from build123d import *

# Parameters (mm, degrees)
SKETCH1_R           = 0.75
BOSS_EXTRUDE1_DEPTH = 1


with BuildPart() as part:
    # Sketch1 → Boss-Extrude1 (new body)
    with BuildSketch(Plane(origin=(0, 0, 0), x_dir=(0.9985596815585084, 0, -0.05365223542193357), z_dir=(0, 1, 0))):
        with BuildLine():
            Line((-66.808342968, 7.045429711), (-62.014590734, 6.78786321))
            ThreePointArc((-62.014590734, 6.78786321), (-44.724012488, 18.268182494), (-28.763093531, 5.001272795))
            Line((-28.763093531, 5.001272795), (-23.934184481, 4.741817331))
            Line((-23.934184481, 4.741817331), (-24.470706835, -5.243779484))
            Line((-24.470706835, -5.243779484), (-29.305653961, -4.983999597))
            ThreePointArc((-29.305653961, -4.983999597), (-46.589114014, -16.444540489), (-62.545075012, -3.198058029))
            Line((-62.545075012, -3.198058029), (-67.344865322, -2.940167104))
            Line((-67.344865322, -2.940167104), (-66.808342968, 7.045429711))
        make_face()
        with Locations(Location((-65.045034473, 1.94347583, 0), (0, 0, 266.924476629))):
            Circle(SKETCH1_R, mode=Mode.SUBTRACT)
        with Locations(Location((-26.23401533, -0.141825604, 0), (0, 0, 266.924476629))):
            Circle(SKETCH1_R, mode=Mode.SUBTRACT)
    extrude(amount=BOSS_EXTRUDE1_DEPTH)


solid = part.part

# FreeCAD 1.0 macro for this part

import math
import FreeCAD as App
import Part
import Sketcher
from FreeCAD import Vector
Q = App.Units.Quantity

doc = App.newDocument("Part")
body = doc.addObject("PartDesign::Body", "Body")

sketch1 = body.newObject("Sketcher::SketchObject", "Sketch")
sketch1.AttachmentSupport = (doc.getObject("XZ_Plane"), [""])
sketch1.MapMode = "FlatFace"
sketch1.addGeometry([
    Part.LineSegment(Vector(-62.289454, -3.450865, 0), Vector(-67.090121, -3.450865, 0)),
    Part.LineSegment(Vector(-67.090121, -3.450865, 0), Vector(-67.090121, 6.549135, 0)),
    Part.LineSegment(Vector(-67.090121, 6.549135, 0), Vector(-62.283407, 6.549135, 0)),
    Part.ArcOfCircle(Part.Circle(Vector(-45.639725, 1.539069, 0), Vector(0, 0, 1), 17.381396), math.radians(16.752797), math.radians(163.247203)),
    Part.LineSegment(Vector(-28.996042, 6.549135, 0), Vector(-24.154121, 6.549135, 0)),
    Part.LineSegment(Vector(-24.154121, 6.549135, 0), Vector(-24.154121, -3.450865, 0)),
    Part.LineSegment(Vector(-24.154121, -3.450865, 0), Vector(-28.989995, -3.450865, 0)),
    Part.ArcOfCircle(Part.Circle(Vector(-45.639725, 1.539069, 0), Vector(0, 0, 1), 17.381396), math.radians(-163.316494), math.radians(-16.683506)),
    Part.Circle(Vector(-26.188621, 1.549135, 0), Vector(0, 0, 1), 0.75),
    Part.Circle(Vector(-65.055621, 1.549135, 0), Vector(0, 0, 1), 0.75),
], False)
sketch1.addConstraint([
    Sketcher.Constraint("Coincident", 0, 2, 1, 1),
    Sketcher.Constraint("Coincident", 1, 2, 2, 1),
    Sketcher.Constraint("Coincident", 2, 2, 3, 2),
    Sketcher.Constraint("Coincident", 3, 1, 4, 1),
    Sketcher.Constraint("Coincident", 4, 2, 5, 1),
    Sketcher.Constraint("Coincident", 5, 2, 6, 1),
    Sketcher.Constraint("Coincident", 6, 2, 7, 2),
    Sketcher.Constraint("Coincident", 7, 1, 0, 1),
    Sketcher.Constraint("Horizontal", 0),
    Sketcher.Constraint("Vertical", 1),
    Sketcher.Constraint("Horizontal", 2),
    Sketcher.Constraint("Horizontal", 4),
    Sketcher.Constraint("Vertical", 5),
    Sketcher.Constraint("Horizontal", 6),
    Sketcher.Constraint("Coincident", 7, 3, 3, 3),
    Sketcher.Constraint("Equal", 3, 7),
    Sketcher.Constraint("Equal", 8, 9),
    Sketcher.Constraint("Horizontal", 8, 3, 9, 3),
    Sketcher.Constraint("Horizontal", 2, 2, 3, 1),
    Sketcher.Constraint("Horizontal", 0, 2, 5, 2),
    Sketcher.Constraint("Diameter", 8, Q("1.5 mm")),
    Sketcher.Constraint("DistanceY", 1, 1, 1, 2, Q("10 mm")),
    Sketcher.Constraint("DistanceY", 0, 2, 9, 3, Q("5 mm")),
    Sketcher.Constraint("Radius", 3, Q("17.381396 mm")),
    Sketcher.Constraint("DistanceX", 9, 3, 8, 3, Q("38.867 mm")),
    Sketcher.Constraint("DistanceX", 4, 1, 4, 2, Q("4.841921 mm")),
    Sketcher.Constraint("DistanceX", 0, 2, 9, 3, Q("2.0345 mm")),
    Sketcher.Constraint("DistanceX", 8, 3, 4, 2, Q("2.0345 mm")),
    Sketcher.Constraint("DistanceX", 2, 1, 2, 2, Q("4.806714 mm")),
    Sketcher.Constraint("DistanceY", -1, 1, 3, 3, Q("1.539069 mm")),
    Sketcher.Constraint("DistanceX", 8, 3, -1, 1, Q("26.188621 mm")),
])
pad1 = body.newObject("PartDesign::Pad", "Pad")
pad1.Profile = sketch1
pad1.Length = 1
pad1.Reversed = True

doc.recompute()
